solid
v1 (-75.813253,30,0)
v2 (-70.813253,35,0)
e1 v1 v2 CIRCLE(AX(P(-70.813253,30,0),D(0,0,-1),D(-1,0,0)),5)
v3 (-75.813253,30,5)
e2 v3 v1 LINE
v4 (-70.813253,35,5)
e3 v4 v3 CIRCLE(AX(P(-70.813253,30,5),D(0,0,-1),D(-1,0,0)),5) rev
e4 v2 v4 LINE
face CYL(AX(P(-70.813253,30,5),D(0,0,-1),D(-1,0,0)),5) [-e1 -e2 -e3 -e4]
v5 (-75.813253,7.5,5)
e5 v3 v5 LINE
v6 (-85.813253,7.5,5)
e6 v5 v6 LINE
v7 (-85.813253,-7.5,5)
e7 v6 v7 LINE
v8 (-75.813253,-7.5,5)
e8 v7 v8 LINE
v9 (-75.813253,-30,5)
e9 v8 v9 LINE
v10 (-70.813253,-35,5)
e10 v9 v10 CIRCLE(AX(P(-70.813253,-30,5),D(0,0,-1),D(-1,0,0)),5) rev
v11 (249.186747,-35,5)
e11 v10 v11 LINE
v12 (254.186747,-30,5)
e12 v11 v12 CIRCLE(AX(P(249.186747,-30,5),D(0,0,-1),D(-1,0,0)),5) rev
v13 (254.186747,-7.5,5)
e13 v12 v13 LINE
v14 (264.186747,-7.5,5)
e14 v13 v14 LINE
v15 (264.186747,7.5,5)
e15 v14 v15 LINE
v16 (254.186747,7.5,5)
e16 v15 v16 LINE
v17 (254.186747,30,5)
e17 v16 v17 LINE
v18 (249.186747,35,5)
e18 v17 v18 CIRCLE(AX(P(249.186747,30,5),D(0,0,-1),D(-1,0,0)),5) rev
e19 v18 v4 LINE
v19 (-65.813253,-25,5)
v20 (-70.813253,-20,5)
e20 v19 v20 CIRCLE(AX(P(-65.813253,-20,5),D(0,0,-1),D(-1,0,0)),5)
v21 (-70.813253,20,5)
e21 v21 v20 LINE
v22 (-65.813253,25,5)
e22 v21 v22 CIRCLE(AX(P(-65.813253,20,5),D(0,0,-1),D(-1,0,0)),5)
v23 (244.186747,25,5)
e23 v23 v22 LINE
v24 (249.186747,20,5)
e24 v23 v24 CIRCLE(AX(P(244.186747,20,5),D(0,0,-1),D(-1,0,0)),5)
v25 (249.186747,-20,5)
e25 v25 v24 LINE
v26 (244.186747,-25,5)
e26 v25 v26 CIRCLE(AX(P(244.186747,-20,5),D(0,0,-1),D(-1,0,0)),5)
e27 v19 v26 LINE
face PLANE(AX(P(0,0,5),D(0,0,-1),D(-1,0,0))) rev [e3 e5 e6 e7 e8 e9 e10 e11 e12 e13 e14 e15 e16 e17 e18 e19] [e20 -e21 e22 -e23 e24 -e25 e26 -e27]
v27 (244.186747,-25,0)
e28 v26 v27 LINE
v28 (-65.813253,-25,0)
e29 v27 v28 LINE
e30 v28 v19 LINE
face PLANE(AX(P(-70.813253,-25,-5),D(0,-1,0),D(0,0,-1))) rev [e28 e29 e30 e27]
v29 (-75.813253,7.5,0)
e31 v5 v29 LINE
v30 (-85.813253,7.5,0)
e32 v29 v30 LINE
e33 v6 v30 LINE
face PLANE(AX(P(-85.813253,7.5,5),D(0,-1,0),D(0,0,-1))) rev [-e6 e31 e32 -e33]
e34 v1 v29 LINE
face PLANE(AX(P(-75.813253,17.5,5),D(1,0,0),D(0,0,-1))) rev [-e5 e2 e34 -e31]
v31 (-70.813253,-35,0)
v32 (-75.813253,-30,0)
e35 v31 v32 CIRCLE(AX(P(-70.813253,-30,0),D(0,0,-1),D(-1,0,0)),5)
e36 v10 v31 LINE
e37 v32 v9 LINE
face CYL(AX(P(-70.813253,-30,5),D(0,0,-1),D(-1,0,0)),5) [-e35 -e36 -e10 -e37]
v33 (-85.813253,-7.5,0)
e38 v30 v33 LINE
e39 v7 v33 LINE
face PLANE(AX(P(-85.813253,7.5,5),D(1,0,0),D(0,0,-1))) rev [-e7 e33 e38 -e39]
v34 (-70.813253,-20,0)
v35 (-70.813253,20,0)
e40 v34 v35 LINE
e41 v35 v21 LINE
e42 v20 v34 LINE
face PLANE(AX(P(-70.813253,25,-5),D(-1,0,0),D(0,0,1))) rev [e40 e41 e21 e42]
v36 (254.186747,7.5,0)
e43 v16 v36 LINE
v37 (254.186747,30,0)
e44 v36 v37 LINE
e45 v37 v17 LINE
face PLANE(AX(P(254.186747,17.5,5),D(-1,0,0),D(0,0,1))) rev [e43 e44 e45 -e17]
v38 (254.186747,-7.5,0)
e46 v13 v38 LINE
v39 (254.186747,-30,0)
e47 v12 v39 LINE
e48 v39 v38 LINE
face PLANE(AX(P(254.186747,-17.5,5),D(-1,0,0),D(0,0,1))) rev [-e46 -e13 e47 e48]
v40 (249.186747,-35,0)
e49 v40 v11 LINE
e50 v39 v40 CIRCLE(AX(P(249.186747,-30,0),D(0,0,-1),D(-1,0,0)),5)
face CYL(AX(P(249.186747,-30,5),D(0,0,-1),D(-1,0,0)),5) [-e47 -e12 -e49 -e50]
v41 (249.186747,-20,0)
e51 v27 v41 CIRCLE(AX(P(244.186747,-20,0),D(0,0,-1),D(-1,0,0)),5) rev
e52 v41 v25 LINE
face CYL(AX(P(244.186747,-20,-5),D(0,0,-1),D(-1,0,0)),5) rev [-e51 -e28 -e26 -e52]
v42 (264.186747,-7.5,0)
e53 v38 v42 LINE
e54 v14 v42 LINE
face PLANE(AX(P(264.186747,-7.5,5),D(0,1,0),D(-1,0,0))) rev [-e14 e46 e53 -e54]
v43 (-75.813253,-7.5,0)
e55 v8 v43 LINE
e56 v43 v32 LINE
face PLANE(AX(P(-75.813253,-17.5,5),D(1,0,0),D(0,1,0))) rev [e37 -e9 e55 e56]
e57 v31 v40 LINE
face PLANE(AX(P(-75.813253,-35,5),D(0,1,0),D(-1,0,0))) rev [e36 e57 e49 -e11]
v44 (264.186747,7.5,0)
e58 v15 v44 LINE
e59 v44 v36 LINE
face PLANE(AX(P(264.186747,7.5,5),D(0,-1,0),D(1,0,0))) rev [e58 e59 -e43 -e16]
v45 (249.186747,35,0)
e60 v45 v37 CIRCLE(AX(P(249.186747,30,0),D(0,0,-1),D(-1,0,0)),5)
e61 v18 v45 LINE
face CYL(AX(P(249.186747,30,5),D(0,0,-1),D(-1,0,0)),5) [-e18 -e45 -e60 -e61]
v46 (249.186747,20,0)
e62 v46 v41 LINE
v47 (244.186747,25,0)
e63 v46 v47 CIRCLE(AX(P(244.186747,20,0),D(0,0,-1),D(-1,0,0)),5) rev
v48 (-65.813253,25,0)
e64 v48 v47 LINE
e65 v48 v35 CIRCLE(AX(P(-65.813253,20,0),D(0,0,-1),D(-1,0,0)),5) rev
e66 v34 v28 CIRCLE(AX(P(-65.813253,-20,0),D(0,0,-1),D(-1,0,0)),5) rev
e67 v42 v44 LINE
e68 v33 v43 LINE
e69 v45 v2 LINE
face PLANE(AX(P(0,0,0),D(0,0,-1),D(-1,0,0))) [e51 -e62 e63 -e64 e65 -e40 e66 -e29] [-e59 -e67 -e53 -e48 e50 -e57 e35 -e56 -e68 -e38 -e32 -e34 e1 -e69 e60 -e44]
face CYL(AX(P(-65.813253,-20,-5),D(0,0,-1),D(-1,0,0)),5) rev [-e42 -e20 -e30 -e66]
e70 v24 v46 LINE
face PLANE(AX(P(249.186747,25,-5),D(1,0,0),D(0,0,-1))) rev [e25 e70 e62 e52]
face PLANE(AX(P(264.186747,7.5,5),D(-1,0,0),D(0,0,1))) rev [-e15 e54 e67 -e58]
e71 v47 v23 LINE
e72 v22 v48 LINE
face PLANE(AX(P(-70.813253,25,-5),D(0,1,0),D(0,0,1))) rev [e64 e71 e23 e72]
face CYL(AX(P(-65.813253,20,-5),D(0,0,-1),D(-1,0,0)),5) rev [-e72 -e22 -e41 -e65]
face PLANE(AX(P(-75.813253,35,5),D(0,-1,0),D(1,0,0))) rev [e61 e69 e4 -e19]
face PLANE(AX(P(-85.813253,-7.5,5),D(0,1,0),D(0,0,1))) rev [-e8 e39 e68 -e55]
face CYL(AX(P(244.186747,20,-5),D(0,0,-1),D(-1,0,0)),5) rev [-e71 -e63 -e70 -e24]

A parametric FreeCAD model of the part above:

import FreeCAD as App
import Part
import Sketcher
from FreeCAD import Vector


def edges_at(feature, points):
    """Names of the edges that pass closest to the given points."""
    edges = feature.Shape.Edges
    near = lambda p: min(range(len(edges)), key=lambda i: edges[i].distToShape(Part.Vertex(*p))[0])
    return sorted({f"Edge{near(p) + 1}" for p in points})


def add_polygon(sketch, points):
    """Adds a closed chain of lines whose ends are joined by coincident constraints."""
    first, n = sketch.GeometryCount, len(points)
    for a, b in zip(points, points[1:] + points[:1]):
        sketch.addGeometry(Part.LineSegment(App.Vector(*a, 0), App.Vector(*b, 0)), False)
    for i in range(n):
        sketch.addConstraint(Sketcher.Constraint("Coincident", first + i, 2, first + (i + 1) % n, 1))

doc = App.newDocument("Part")
body = doc.addObject("PartDesign::Body", "Body")

# Sketch on XY plane
sketch1 = doc.addObject("Sketcher::SketchObject", "Sketch")
body.addObject(sketch1)
sketch1.AttachmentSupport = (doc.XY_Plane, [""])
sketch1.MapMode = "FlatFace"
add_polygon(sketch1, [(254, 35), (-76, 35), (-76, 8), (-86, 8), (-86, -8), (-76, -8), (-76, -35), (254, -35), (254, -8), (264, -8), (264, 8), (254, 8)])  # lines 0-11
sketch1.addConstraint(Sketcher.Constraint("Horizontal", 0))
sketch1.addConstraint(Sketcher.Constraint("Vertical", 1))
sketch1.addConstraint(Sketcher.Constraint("Horizontal", 2))
sketch1.addConstraint(Sketcher.Constraint("Vertical", 3))
sketch1.addConstraint(Sketcher.Constraint("Horizontal", 4))
sketch1.addConstraint(Sketcher.Constraint("Vertical", 5))
sketch1.addConstraint(Sketcher.Constraint("Horizontal", 6))
sketch1.addConstraint(Sketcher.Constraint("Vertical", 7))
sketch1.addConstraint(Sketcher.Constraint("Horizontal", 8))
sketch1.addConstraint(Sketcher.Constraint("Vertical", 9))
sketch1.addConstraint(Sketcher.Constraint("Horizontal", 10))
sketch1.addConstraint(Sketcher.Constraint("Vertical", 11))
sketch1.addConstraint(Sketcher.Constraint("Symmetric", 1, 2, 4, 2, -1))
sketch1.addConstraint(Sketcher.Constraint("Symmetric", 7, 2, 10, 2, -1))
sketch1.addConstraint(Sketcher.Constraint("Horizontal", 4, 2, 7, 2))
sketch1.addConstraint(Sketcher.Constraint("Equal", 4, 8))
sketch1.addConstraint(Sketcher.Constraint("Equal", 1, 5))
sketch1.addConstraint(Sketcher.Constraint("DistanceX", 0, 2, 0, 1, 330.0))
sketch1.addConstraint(Sketcher.Constraint("DistanceX", 2, 2, 2, 1, 10.0))
sketch1.addConstraint(Sketcher.Constraint("DistanceY", 3, 2, 3, 1, 15.0))
sketch1.addConstraint(Sketcher.Constraint("DistanceY", 1, 2, 1, 1, 27.5))
sketch1.addConstraint(Sketcher.Constraint("DistanceX", 0, 2, -1, 1, 75.813253))
pad1 = doc.addObject("PartDesign::Pad", "Pad")
body.addObject(pad1)
pad1.Profile = sketch1
pad1.Length = 5

# Sketch on XY plane
sketch2 = doc.addObject("Sketcher::SketchObject", "Sketch001")
body.addObject(sketch2)
sketch2.AttachmentSupport = (doc.XY_Plane, [""])
sketch2.MapMode = "FlatFace"
sketch2.AttachmentOffset = App.Placement(Vector(0, 0, 5), App.Rotation())
add_polygon(sketch2, [(-71, 25), (-71, -25), (249, -25), (249, 25)])  # lines 0-3
sketch2.addConstraint(Sketcher.Constraint("Vertical", 0))
sketch2.addConstraint(Sketcher.Constraint("Horizontal", 1))
sketch2.addConstraint(Sketcher.Constraint("Vertical", 2))
sketch2.addConstraint(Sketcher.Constraint("Horizontal", 3))
sketch2.addConstraint(Sketcher.Constraint("DistanceX", 1, 1, 1, 2, 320.0))
sketch2.addConstraint(Sketcher.Constraint("DistanceY", 0, 2, 0, 1, 50.0))
sketch2.addConstraint(Sketcher.Constraint("DistanceY", 0, 2, -1, 1, 25.0))
sketch2.addConstraint(Sketcher.Constraint("DistanceX", 0, 2, -1, 1, 70.813253))
pocket1 = doc.addObject("PartDesign::Pocket", "Pocket")
body.addObject(pocket1)
pocket1.Profile = sketch2
pocket1.Length = 10
doc.recompute()

fillet = doc.addObject("PartDesign::Fillet", "Fillet")
body.addObject(fillet)
fillet.Base = (pocket1, edges_at(pocket1, [
    (-75.813, 35, 2.5),
    (254.187, 35, 2.5),
    (254.187, -35, 2.5),
    (-75.813, -35, 2.5),
    (-70.813, -25, 2.5),
    (-70.813, 25, 2.5),
    (249.187, 25, 2.5),
    (249.187, -25, 2.5),
]))
fillet.Radius = 5

doc.recompute()
